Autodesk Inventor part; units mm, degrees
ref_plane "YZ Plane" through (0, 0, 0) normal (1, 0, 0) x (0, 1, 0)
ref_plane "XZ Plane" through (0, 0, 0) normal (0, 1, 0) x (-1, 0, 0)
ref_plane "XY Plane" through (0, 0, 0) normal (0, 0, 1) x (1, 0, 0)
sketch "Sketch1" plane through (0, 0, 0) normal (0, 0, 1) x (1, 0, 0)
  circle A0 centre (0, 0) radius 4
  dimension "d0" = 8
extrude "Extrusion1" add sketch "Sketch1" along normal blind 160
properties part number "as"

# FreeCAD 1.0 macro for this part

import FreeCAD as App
import Part
import Sketcher

V = App.Vector

doc = App.newDocument("Part")
body = doc.addObject("PartDesign::Body", "Body")

# Sketch on XY plane
sketch1 = doc.addObject("Sketcher::SketchObject", "Sketch")
body.addObject(sketch1)
sketch1.AttachmentSupport = (doc.XY_Plane, [""])
sketch1.MapMode = "FlatFace"
sketch1.addGeometry(Part.Circle(V(0, 0, 0), V(0, 0, 1), 4), False)
sketch1.addConstraint(Sketcher.Constraint("Coincident", 0, 3, -1, 1))
sketch1.addConstraint(Sketcher.Constraint("Diameter", 0, 8.0))
pad1 = doc.addObject("PartDesign::Pad", "Pad")
body.addObject(pad1)
pad1.Profile = sketch1
pad1.Length = 160

doc.recompute()
